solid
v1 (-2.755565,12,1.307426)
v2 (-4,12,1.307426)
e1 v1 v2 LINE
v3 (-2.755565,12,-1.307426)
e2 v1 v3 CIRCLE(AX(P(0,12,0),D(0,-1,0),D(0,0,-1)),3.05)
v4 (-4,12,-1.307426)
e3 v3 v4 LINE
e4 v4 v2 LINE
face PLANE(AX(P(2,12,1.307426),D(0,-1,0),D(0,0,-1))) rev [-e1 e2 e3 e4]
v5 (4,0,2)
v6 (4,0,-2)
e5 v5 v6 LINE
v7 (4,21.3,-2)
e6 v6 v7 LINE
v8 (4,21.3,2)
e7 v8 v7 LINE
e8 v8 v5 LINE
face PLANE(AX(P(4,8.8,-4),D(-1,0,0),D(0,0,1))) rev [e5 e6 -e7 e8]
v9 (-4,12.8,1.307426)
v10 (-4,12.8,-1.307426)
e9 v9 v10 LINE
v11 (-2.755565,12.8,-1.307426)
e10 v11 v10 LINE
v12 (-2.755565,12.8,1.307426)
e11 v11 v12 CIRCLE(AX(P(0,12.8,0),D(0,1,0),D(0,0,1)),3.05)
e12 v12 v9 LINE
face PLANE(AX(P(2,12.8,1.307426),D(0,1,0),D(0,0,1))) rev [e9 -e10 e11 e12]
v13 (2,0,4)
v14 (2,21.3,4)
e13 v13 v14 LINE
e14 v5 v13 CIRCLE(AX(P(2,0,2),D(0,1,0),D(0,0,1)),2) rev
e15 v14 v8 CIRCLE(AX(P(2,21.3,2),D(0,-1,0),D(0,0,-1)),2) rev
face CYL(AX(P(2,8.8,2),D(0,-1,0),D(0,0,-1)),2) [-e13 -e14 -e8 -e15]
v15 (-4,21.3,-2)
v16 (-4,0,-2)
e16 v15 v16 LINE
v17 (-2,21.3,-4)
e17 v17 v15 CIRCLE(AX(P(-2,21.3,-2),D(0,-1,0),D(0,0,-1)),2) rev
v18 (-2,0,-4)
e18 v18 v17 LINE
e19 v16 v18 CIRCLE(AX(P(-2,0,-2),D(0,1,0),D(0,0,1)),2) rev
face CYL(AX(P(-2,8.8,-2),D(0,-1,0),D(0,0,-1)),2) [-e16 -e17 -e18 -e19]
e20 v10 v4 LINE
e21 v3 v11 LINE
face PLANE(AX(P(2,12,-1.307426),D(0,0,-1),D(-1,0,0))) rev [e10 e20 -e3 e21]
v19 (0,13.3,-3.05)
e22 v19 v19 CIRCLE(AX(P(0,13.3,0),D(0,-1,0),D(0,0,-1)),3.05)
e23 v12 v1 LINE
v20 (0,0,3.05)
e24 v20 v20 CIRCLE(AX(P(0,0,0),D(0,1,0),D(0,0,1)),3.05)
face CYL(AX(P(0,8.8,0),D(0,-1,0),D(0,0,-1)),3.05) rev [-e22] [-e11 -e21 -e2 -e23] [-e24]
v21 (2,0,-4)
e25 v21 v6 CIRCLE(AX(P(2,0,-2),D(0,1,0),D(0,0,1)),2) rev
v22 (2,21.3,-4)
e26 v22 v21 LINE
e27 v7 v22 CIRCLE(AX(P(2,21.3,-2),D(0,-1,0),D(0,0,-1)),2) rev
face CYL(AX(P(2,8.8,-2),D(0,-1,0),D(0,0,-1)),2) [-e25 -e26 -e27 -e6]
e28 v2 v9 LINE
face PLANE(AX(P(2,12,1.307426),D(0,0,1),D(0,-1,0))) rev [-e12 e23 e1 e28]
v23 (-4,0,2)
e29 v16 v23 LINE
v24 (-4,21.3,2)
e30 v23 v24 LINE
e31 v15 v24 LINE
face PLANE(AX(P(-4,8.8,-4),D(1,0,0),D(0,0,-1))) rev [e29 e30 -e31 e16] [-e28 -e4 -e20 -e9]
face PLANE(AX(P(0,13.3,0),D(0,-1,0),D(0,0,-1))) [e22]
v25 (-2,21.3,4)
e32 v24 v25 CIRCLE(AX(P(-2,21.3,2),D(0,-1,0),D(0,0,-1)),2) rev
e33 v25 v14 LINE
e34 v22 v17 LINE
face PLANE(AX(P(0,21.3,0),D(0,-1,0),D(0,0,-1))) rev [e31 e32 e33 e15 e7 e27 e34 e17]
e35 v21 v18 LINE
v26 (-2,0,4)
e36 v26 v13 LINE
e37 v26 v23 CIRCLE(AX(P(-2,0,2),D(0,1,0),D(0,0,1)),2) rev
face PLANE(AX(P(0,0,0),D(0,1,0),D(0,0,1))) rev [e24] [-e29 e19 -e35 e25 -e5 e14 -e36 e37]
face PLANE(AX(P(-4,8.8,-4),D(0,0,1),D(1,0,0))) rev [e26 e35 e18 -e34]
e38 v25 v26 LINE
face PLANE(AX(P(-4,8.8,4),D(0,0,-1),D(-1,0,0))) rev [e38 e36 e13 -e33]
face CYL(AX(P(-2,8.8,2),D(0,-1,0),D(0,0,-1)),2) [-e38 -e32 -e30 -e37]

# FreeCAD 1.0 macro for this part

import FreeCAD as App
import Part
import Sketcher


def edges_at(feature, points):
    """Names of the edges that pass closest to the given points."""
    edges = feature.Shape.Edges
    near = lambda p: min(range(len(edges)), key=lambda i: edges[i].distToShape(Part.Vertex(*p))[0])
    return sorted({f"Edge{near(p) + 1}" for p in points})

doc = App.newDocument("Part")
body = doc.addObject("PartDesign::Body", "Body")

# Sketch on XZ plane
sketch1 = body.newObject("Sketcher::SketchObject", "Sketch")
sketch1.AttachmentSupport = (doc.getObject("XZ_Plane"), [""])
sketch1.MapMode = "FlatFace"
sketch1.addGeometry(Part.LineSegment(App.Vector(-4, -4, 0), App.Vector(-4, 4, 0)), False)
sketch1.addGeometry(Part.LineSegment(App.Vector(-4, 4, 0), App.Vector(4, 4, 0)), False)
sketch1.addGeometry(Part.LineSegment(App.Vector(4, 4, 0), App.Vector(4, -4, 0)), False)
sketch1.addGeometry(Part.LineSegment(App.Vector(4, -4, 0), App.Vector(-4, -4, 0)), False)
sketch1.addGeometry(Part.Circle(App.Vector(0, 0, 0), App.Vector(0, 0, 1), 3.05), False)
sketch1.addConstraint(Sketcher.Constraint("Coincident", 0, 2, 1, 1))
sketch1.addConstraint(Sketcher.Constraint("Coincident", 1, 2, 2, 1))
sketch1.addConstraint(Sketcher.Constraint("Coincident", 2, 2, 3, 1))
sketch1.addConstraint(Sketcher.Constraint("Coincident", 3, 2, 0, 1))
sketch1.addConstraint(Sketcher.Constraint("Vertical", 0))
sketch1.addConstraint(Sketcher.Constraint("Horizontal", 1))
sketch1.addConstraint(Sketcher.Constraint("Vertical", 2))
sketch1.addConstraint(Sketcher.Constraint("Horizontal", 3))
sketch1.addConstraint(Sketcher.Constraint("Coincident", 4, 3, -1, 1))
sketch1.addConstraint(Sketcher.Constraint("Symmetric", 0, 2, 2, 2, -1, 1))
sketch1.addConstraint(Sketcher.Constraint("Equal", 3, 0))
sketch1.addConstraint(Sketcher.Constraint("Diameter", 4, 6.1))
sketch1.addConstraint(Sketcher.Constraint("DistanceX", 1, 1, 1, 2, 8.0))
pad1 = body.newObject("PartDesign::Pad", "Pad")
pad1.Profile = sketch1
pad1.Length = 8.8
pad1.Reversed = True

# Sketch on XY plane
sketch2 = body.newObject("Sketcher::SketchObject", "Sketch001")
sketch2.AttachmentSupport = (doc.getObject("XY_Plane"), [""])
sketch2.MapMode = "FlatFace"
sketch2.AttachmentOffset = App.Placement(App.Vector(0, 0, -4), App.Rotation())
sketch2.addGeometry(Part.LineSegment(App.Vector(4, 13.3, 0), App.Vector(4, 8.8, 0)), False)
sketch2.addGeometry(Part.LineSegment(App.Vector(4, 8.8, 0), App.Vector(-4, 8.8, 0)), False)
sketch2.addGeometry(Part.LineSegment(App.Vector(-4, 8.8, 0), App.Vector(-4, 13.3, 0)), False)
sketch2.addGeometry(Part.LineSegment(App.Vector(-4, 13.3, 0), App.Vector(4, 13.3, 0)), False)
sketch2.addConstraint(Sketcher.Constraint("Coincident", 0, 2, 1, 1))
sketch2.addConstraint(Sketcher.Constraint("Coincident", 1, 2, 2, 1))
sketch2.addConstraint(Sketcher.Constraint("Coincident", 2, 2, 3, 1))
sketch2.addConstraint(Sketcher.Constraint("Coincident", 3, 2, 0, 1))
sketch2.addConstraint(Sketcher.Constraint("Vertical", 0))
sketch2.addConstraint(Sketcher.Constraint("Horizontal", 1))
sketch2.addConstraint(Sketcher.Constraint("Vertical", 2))
sketch2.addConstraint(Sketcher.Constraint("Horizontal", 3))
sketch2.addConstraint(Sketcher.Constraint("DistanceX", 1, 2, 1, 1, 8.0))
sketch2.addConstraint(Sketcher.Constraint("DistanceY", 0, 2, 0, 1, 4.5))
sketch2.addConstraint(Sketcher.Constraint("DistanceX", -1, 1, 0, 2, 4.0))
sketch2.addConstraint(Sketcher.Constraint("DistanceY", -1, 1, 0, 2, 8.8))
pad2 = body.newObject("PartDesign::Pad", "Pad001")
pad2.Profile = sketch2
pad2.Length = 8.8

# Sketch on XZ plane
sketch3 = body.newObject("Sketcher::SketchObject", "Sketch002")
sketch3.AttachmentSupport = (doc.getObject("XZ_Plane"), [""])
sketch3.MapMode = "FlatFace"
sketch3.AttachmentOffset = App.Placement(App.Vector(0, 0, -8.8), App.Rotation())
sketch3.addGeometry(Part.Circle(App.Vector(0, 0, 0), App.Vector(0, 0, 1), 3.05), False)
sketch3.addConstraint(Sketcher.Constraint("Coincident", 0, 3, -1, 1))
sketch3.addConstraint(Sketcher.Constraint("Diameter", 0, 6.1))
pocket1 = body.newObject("PartDesign::Pocket", "Pocket")
pocket1.Profile = sketch3
pocket1.Type = "ThroughAll"

# Sketch on XZ plane
sketch4 = body.newObject("Sketcher::SketchObject", "Sketch003")
sketch4.AttachmentSupport = (doc.getObject("XZ_Plane"), [""])
sketch4.MapMode = "FlatFace"
sketch4.AttachmentOffset = App.Placement(App.Vector(0, 0, -8.8), App.Rotation())
sketch4.addGeometry(Part.LineSegment(App.Vector(-4, 4.8, 0), App.Vector(-4, 4, 0)), False)
sketch4.addGeometry(Part.LineSegment(App.Vector(-4, 4, 0), App.Vector(4, 4, 0)), False)
sketch4.addGeometry(Part.LineSegment(App.Vector(4, 4, 0), App.Vector(4, 4.8, 0)), False)
sketch4.addGeometry(Part.LineSegment(App.Vector(4, 4.8, 0), App.Vector(-4, 4.8, 0)), False)
sketch4.addConstraint(Sketcher.Constraint("Coincident", 0, 2, 1, 1))
sketch4.addConstraint(Sketcher.Constraint("Coincident", 1, 2, 2, 1))
sketch4.addConstraint(Sketcher.Constraint("Coincident", 2, 2, 3, 1))
sketch4.addConstraint(Sketcher.Constraint("Coincident", 3, 2, 0, 1))
sketch4.addConstraint(Sketcher.Constraint("Vertical", 0))
sketch4.addConstraint(Sketcher.Constraint("Horizontal", 1))
sketch4.addConstraint(Sketcher.Constraint("Vertical", 2))
sketch4.addConstraint(Sketcher.Constraint("Horizontal", 3))
sketch4.addConstraint(Sketcher.Constraint("DistanceX", 1, 1, 1, 2, 8.0))
sketch4.addConstraint(Sketcher.Constraint("DistanceY", 0, 2, 0, 1, 0.8))
sketch4.addConstraint(Sketcher.Constraint("DistanceX", 0, 2, -1, 1, 4.0))
sketch4.addConstraint(Sketcher.Constraint("DistanceY", -1, 1, 0, 2, 4.0))
pocket2 = body.newObject("PartDesign::Pocket", "Pocket001")
pocket2.Profile = sketch4
pocket2.Type = "ThroughAll"

# Sketch on YZ plane
sketch5 = body.newObject("Sketcher::SketchObject", "Sketch004")
sketch5.AttachmentSupport = (doc.getObject("YZ_Plane"), [""])
sketch5.MapMode = "FlatFace"
sketch5.AttachmentOffset = App.Placement(App.Vector(0, 0, -4), App.Rotation())
sketch5.addGeometry(Part.LineSegment(App.Vector(12.8, -1.307426, 0), App.Vector(12, -1.307426, 0)), False)
sketch5.addGeometry(Part.LineSegment(App.Vector(12, -1.307426, 0), App.Vector(12, 1.307426, 0)), False)
sketch5.addGeometry(Part.LineSegment(App.Vector(12, 1.307426, 0), App.Vector(12.8, 1.307426, 0)), False)
sketch5.addGeometry(Part.LineSegment(App.Vector(12.8, 1.307426, 0), App.Vector(12.8, -1.307426, 0)), False)
sketch5.addConstraint(Sketcher.Constraint("Coincident", 0, 2, 1, 1))
sketch5.addConstraint(Sketcher.Constraint("Coincident", 1, 2, 2, 1))
sketch5.addConstraint(Sketcher.Constraint("Coincident", 2, 2, 3, 1))
sketch5.addConstraint(Sketcher.Constraint("Coincident", 3, 2, 0, 1))
sketch5.addConstraint(Sketcher.Constraint("Horizontal", 0))
sketch5.addConstraint(Sketcher.Constraint("Vertical", 1))
sketch5.addConstraint(Sketcher.Constraint("Horizontal", 2))
sketch5.addConstraint(Sketcher.Constraint("Vertical", 3))
sketch5.addConstraint(Sketcher.Constraint("DistanceX", 0, 2, 0, 1, 0.8))
sketch5.addConstraint(Sketcher.Constraint("DistanceX", -1, 1, 0, 2, 12.0))
sketch5.addConstraint(Sketcher.Constraint("DistanceY", 1, 1, 1, 2, 2.614852))
sketch5.addConstraint(Sketcher.Constraint("DistanceY", 0, 2, -1, 1, 1.307426))
pocket3 = body.newObject("PartDesign::Pocket", "Pocket002")
pocket3.Profile = sketch5
pocket3.Length = 6
pocket3.Reversed = True

# Sketch on XZ plane
sketch6 = body.newObject("Sketcher::SketchObject", "Sketch005")
sketch6.AttachmentSupport = (doc.getObject("XZ_Plane"), [""])
sketch6.MapMode = "FlatFace"
sketch6.AttachmentOffset = App.Placement(App.Vector(0, 0, -13.3), App.Rotation())
sketch6.addGeometry(Part.LineSegment(App.Vector(-4, -4, 0), App.Vector(-4, 4, 0)), False)
sketch6.addGeometry(Part.LineSegment(App.Vector(-4, 4, 0), App.Vector(4, 4, 0)), False)
sketch6.addGeometry(Part.LineSegment(App.Vector(4, 4, 0), App.Vector(4, -4, 0)), False)
sketch6.addGeometry(Part.LineSegment(App.Vector(4, -4, 0), App.Vector(-4, -4, 0)), False)
sketch6.addConstraint(Sketcher.Constraint("Coincident", 0, 2, 1, 1))
sketch6.addConstraint(Sketcher.Constraint("Coincident", 1, 2, 2, 1))
sketch6.addConstraint(Sketcher.Constraint("Coincident", 2, 2, 3, 1))
sketch6.addConstraint(Sketcher.Constraint("Coincident", 3, 2, 0, 1))
sketch6.addConstraint(Sketcher.Constraint("Vertical", 0))
sketch6.addConstraint(Sketcher.Constraint("Horizontal", 1))
sketch6.addConstraint(Sketcher.Constraint("Vertical", 2))
sketch6.addConstraint(Sketcher.Constraint("Horizontal", 3))
sketch6.addConstraint(Sketcher.Constraint("Symmetric", 0, 2, 2, 2, -1, 1))
sketch6.addConstraint(Sketcher.Constraint("Equal", 3, 0))
sketch6.addConstraint(Sketcher.Constraint("DistanceX", 1, 1, 1, 2, 8.0))
pad3 = body.newObject("PartDesign::Pad", "Pad002")
pad3.Profile = sketch6
pad3.Length = 8
pad3.Reversed = True
doc.recompute()

fillet = body.newObject("PartDesign::Fillet", "Fillet")
fillet.Base = (pad3, edges_at(pad3, [
    (4, 10.65, 4),
    (-4, 10.65, 4),
    (-4, 10.65, -4),
    (4, 10.65, -4),
]))
fillet.Radius = 2

doc.recompute()
